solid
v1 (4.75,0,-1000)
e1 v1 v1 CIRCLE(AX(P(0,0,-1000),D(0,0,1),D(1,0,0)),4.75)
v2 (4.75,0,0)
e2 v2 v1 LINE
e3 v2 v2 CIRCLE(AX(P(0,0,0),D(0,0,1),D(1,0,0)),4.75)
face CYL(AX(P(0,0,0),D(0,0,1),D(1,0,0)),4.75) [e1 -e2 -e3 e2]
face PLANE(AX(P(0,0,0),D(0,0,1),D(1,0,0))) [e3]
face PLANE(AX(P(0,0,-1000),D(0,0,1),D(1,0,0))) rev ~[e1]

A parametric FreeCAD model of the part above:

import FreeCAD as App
import Part
import Sketcher

doc = App.newDocument("Part")
body = doc.addObject("PartDesign::Body", "Body")

# Sketch on XY plane
sketch1 = body.newObject("Sketcher::SketchObject", "Sketch")
sketch1.AttachmentSupport = (doc.getObject("XY_Plane"), [""])
sketch1.MapMode = "FlatFace"
sketch1.addGeometry(Part.Circle(App.Vector(0, 0, 0), App.Vector(0, 0, 1), 4.75), False)
sketch1.addConstraint([
    Sketcher.Constraint("Coincident", 0, 3, -1, 1),
    Sketcher.Constraint("Diameter", 0, 9.5),
])
pad1 = body.newObject("PartDesign::Pad", "Pad")
pad1.Profile = sketch1
pad1.Length = 1000
pad1.Reversed = True

doc.recompute()
